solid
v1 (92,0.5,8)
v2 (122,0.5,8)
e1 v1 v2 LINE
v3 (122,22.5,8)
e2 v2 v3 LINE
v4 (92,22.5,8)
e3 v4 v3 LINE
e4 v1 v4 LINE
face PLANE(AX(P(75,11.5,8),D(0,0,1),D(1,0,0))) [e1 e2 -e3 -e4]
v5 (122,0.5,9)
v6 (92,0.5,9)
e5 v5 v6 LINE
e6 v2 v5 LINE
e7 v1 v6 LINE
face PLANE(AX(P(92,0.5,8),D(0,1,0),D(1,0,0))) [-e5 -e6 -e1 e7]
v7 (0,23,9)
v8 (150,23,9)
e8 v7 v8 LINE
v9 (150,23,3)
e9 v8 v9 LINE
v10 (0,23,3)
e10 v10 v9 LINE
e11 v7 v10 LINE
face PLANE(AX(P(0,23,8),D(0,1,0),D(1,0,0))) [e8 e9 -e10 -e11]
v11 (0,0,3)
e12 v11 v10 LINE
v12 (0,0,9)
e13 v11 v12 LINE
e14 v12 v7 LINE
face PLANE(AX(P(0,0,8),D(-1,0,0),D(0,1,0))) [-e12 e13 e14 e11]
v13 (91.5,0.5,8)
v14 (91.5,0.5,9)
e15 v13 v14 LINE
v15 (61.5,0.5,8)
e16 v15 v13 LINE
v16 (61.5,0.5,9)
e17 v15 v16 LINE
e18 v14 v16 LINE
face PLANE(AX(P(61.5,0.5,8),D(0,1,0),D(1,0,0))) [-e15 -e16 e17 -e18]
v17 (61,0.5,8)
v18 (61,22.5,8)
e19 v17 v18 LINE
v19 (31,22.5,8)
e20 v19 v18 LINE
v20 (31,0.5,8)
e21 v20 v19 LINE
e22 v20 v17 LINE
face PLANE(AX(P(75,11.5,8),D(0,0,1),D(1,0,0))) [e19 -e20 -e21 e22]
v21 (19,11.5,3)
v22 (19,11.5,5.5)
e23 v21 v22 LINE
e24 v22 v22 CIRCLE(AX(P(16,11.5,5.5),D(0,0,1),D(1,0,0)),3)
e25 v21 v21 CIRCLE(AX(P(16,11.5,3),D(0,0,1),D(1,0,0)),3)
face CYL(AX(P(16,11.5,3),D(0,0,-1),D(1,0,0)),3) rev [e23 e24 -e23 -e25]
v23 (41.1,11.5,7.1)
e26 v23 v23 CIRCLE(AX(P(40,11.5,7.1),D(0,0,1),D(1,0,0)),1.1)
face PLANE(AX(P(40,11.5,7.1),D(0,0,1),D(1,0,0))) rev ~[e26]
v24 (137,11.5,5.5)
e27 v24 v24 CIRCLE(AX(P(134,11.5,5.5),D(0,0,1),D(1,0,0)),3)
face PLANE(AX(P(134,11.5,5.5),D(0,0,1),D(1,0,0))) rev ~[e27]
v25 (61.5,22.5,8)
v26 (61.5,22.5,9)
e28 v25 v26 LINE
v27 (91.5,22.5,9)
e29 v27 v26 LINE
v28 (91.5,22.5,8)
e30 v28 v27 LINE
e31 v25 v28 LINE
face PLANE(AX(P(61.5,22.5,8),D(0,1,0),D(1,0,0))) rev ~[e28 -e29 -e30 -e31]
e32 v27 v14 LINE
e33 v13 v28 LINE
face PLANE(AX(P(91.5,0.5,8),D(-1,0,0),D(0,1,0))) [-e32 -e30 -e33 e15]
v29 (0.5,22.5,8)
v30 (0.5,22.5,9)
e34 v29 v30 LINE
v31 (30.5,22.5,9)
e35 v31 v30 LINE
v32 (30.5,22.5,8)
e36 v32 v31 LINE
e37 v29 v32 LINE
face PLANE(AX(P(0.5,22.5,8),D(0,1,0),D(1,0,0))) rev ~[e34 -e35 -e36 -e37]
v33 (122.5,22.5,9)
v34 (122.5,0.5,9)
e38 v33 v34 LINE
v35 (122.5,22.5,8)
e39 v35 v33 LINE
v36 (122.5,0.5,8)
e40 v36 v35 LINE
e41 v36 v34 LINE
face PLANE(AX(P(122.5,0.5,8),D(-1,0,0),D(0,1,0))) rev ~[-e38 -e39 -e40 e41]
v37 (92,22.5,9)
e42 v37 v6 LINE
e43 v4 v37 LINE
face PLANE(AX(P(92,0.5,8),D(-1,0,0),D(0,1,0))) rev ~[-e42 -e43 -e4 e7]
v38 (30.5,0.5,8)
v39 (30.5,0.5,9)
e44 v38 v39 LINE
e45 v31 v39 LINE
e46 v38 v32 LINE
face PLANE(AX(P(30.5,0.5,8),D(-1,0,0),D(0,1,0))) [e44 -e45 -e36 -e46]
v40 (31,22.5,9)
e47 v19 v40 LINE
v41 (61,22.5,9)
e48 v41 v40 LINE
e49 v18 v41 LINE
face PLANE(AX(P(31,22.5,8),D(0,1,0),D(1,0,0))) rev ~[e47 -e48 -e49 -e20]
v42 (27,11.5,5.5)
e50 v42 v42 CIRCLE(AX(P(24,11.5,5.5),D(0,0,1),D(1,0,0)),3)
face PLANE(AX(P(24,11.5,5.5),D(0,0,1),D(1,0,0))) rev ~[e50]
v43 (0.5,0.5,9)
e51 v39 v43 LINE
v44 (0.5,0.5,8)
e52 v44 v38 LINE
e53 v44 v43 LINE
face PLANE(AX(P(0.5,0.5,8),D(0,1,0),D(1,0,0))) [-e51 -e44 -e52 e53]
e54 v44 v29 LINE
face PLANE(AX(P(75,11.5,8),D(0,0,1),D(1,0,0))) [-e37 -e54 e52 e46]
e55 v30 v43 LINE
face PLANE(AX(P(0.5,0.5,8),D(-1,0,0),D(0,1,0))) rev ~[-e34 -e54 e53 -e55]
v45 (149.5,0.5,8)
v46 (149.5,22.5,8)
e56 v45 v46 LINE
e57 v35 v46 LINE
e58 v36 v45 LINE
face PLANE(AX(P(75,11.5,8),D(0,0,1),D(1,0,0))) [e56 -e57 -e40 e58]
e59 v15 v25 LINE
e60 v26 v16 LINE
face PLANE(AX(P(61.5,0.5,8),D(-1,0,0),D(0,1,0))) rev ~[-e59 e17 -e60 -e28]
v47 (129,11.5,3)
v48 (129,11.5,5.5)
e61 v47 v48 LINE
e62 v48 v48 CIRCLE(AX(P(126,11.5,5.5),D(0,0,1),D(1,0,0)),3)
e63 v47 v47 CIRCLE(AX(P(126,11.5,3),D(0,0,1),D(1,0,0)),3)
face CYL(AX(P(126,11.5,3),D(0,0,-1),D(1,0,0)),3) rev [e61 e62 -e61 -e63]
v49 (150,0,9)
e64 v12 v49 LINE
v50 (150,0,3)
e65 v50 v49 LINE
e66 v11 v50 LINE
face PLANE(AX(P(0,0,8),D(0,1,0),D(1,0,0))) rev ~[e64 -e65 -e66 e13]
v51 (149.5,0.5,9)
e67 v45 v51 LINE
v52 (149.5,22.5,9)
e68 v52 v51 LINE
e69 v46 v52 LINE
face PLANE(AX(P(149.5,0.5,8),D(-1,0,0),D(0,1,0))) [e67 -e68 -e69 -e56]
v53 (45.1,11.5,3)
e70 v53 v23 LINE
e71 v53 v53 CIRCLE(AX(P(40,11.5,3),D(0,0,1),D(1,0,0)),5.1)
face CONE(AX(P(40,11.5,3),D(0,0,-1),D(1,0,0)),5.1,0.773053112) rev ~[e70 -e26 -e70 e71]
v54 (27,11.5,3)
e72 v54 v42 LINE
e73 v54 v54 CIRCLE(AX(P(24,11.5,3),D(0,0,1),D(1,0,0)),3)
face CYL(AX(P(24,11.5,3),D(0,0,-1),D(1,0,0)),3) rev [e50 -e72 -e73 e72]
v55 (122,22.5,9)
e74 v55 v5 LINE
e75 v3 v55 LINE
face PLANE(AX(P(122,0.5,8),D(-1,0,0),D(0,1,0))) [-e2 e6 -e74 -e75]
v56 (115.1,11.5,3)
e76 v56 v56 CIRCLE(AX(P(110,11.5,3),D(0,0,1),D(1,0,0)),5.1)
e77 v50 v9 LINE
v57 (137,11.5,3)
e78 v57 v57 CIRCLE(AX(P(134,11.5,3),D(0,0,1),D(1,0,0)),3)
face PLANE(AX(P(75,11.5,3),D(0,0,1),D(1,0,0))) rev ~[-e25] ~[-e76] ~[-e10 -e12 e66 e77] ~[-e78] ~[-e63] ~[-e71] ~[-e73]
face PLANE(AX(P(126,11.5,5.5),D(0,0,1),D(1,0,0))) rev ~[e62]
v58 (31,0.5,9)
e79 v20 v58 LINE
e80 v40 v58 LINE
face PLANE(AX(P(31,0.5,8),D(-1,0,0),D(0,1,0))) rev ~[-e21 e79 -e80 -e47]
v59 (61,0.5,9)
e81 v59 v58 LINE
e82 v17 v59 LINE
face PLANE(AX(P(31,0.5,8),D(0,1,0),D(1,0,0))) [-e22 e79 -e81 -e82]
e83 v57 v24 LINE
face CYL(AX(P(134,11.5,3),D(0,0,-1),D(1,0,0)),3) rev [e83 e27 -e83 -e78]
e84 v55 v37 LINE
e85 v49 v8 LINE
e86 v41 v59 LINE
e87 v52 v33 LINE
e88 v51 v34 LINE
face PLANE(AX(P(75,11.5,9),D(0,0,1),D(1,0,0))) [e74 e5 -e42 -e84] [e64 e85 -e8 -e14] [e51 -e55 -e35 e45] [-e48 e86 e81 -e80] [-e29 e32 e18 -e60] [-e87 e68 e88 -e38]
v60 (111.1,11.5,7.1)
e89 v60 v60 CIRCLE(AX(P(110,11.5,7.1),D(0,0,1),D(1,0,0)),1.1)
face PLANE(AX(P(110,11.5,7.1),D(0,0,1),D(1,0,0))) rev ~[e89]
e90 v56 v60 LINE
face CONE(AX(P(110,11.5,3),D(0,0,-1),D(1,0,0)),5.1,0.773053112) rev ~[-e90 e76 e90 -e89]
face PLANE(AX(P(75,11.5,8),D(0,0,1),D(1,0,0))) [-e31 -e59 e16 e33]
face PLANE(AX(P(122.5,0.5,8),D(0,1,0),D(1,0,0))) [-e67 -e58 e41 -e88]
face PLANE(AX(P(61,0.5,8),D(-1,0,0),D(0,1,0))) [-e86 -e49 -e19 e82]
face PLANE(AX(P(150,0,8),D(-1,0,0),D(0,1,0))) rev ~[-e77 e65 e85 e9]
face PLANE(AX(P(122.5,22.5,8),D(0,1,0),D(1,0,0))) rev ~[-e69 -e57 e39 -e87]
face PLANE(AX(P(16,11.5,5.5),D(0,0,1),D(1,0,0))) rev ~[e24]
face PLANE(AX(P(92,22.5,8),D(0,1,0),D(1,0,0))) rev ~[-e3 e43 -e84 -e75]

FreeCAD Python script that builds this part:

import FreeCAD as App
import Part
import Sketcher
Q = App.Units.Quantity

doc = App.newDocument("Part")
body = doc.addObject("PartDesign::Body", "Body")

# Sketch on XY plane
sketch1 = body.newObject("Sketcher::SketchObject", "Sketch")
sketch1.AttachmentSupport = (doc.getObject("XY_Plane"), [""])
sketch1.MapMode = "FlatFace"
sketch1.AttachmentOffset = App.Placement(App.Vector(0, 0, 8), App.Rotation())
sketch1.addGeometry([
    Part.LineSegment(App.Vector(92, 22, 0), App.Vector(92, 0, 0)),
    Part.LineSegment(App.Vector(92, 0, 0), App.Vector(122, 0, 0)),
    Part.LineSegment(App.Vector(122, 0, 0), App.Vector(122, 22, 0)),
    Part.LineSegment(App.Vector(122, 22, 0), App.Vector(92, 22, 0)),
], False)
sketch1.addConstraint([
    Sketcher.Constraint("Coincident", 0, 2, 1, 1),
    Sketcher.Constraint("Coincident", 1, 2, 2, 1),
    Sketcher.Constraint("Coincident", 2, 2, 3, 1),
    Sketcher.Constraint("Coincident", 3, 2, 0, 1),
    Sketcher.Constraint("Vertical", 0),
    Sketcher.Constraint("Horizontal", 1),
    Sketcher.Constraint("Vertical", 2),
    Sketcher.Constraint("Horizontal", 3),
    Sketcher.Constraint("DistanceX", 1, 1, 1, 2, Q("30 mm")),
    Sketcher.Constraint("DistanceY", 0, 2, 0, 1, Q("22 mm")),
    Sketcher.Constraint("DistanceX", -1, 1, 0, 2, Q("92 mm")),
    Sketcher.Constraint("DistanceY", -1, 1, 0, 2, Q("0.5 mm")),
])
pad1 = body.newObject("PartDesign::Pad", "Pad")
pad1.Profile = sketch1
pad1.Length = 1.5
body2 = doc.addObject("PartDesign::Body", "Body001")

# Sketch on XY plane
sketch2 = body2.newObject("Sketcher::SketchObject", "Sketch001")
sketch2.AttachmentSupport = (doc.getObject("XY_Plane001"), [""])
sketch2.MapMode = "FlatFace"
sketch2.AttachmentOffset = App.Placement(App.Vector(0, 0, 8), App.Rotation())
sketch2.addGeometry([
    Part.LineSegment(App.Vector(122, 22, 0), App.Vector(122, 0, 0)),
    Part.LineSegment(App.Vector(122, 0, 0), App.Vector(150, 0, 0)),
    Part.LineSegment(App.Vector(150, 0, 0), App.Vector(150, 22, 0)),
    Part.LineSegment(App.Vector(150, 22, 0), App.Vector(122, 22, 0)),
], False)
sketch2.addConstraint([
    Sketcher.Constraint("Coincident", 0, 2, 1, 1),
    Sketcher.Constraint("Coincident", 1, 2, 2, 1),
    Sketcher.Constraint("Coincident", 2, 2, 3, 1),
    Sketcher.Constraint("Coincident", 3, 2, 0, 1),
    Sketcher.Constraint("Vertical", 0),
    Sketcher.Constraint("Horizontal", 1),
    Sketcher.Constraint("Vertical", 2),
    Sketcher.Constraint("Horizontal", 3),
    Sketcher.Constraint("DistanceX", 1, 1, 1, 2, Q("27 mm")),
    Sketcher.Constraint("DistanceY", 0, 2, 0, 1, Q("22 mm")),
    Sketcher.Constraint("DistanceX", -1, 1, 0, 2, Q("122.5 mm")),
    Sketcher.Constraint("DistanceY", -1, 1, 0, 2, Q("0.5 mm")),
])
pad2 = body2.newObject("PartDesign::Pad", "Pad001")
pad2.Profile = sketch2
pad2.Length = 1.5
body3 = doc.addObject("PartDesign::Body", "Body002")

# Sketch on XY plane
sketch3 = body3.newObject("Sketcher::SketchObject", "Sketch002")
sketch3.AttachmentSupport = (doc.getObject("XY_Plane002"), [""])
sketch3.MapMode = "FlatFace"
sketch3.AttachmentOffset = App.Placement(App.Vector(0, 0, 8), App.Rotation())
sketch3.addGeometry([
    Part.LineSegment(App.Vector(62, 22, 0), App.Vector(62, 0, 0)),
    Part.LineSegment(App.Vector(62, 0, 0), App.Vector(92, 0, 0)),
    Part.LineSegment(App.Vector(92, 0, 0), App.Vector(92, 22, 0)),
    Part.LineSegment(App.Vector(92, 22, 0), App.Vector(62, 22, 0)),
], False)
sketch3.addConstraint([
    Sketcher.Constraint("Coincident", 0, 2, 1, 1),
    Sketcher.Constraint("Coincident", 1, 2, 2, 1),
    Sketcher.Constraint("Coincident", 2, 2, 3, 1),
    Sketcher.Constraint("Coincident", 3, 2, 0, 1),
    Sketcher.Constraint("Vertical", 0),
    Sketcher.Constraint("Horizontal", 1),
    Sketcher.Constraint("Vertical", 2),
    Sketcher.Constraint("Horizontal", 3),
    Sketcher.Constraint("DistanceX", 1, 1, 1, 2, Q("30 mm")),
    Sketcher.Constraint("DistanceY", 0, 2, 0, 1, Q("22 mm")),
    Sketcher.Constraint("DistanceX", -1, 1, 0, 2, Q("61.5 mm")),
    Sketcher.Constraint("DistanceY", -1, 1, 0, 2, Q("0.5 mm")),
])
pad3 = body3.newObject("PartDesign::Pad", "Pad002")
pad3.Profile = sketch3
pad3.Length = 1.5
body4 = doc.addObject("PartDesign::Body", "Body003")

# Sketch on XY plane
sketch4 = body4.newObject("Sketcher::SketchObject", "Sketch003")
sketch4.AttachmentSupport = (doc.getObject("XY_Plane003"), [""])
sketch4.MapMode = "FlatFace"
sketch4.AttachmentOffset = App.Placement(App.Vector(0, 0, 8), App.Rotation())
sketch4.addGeometry([
    Part.LineSegment(App.Vector(31, 22, 0), App.Vector(31, 0, 0)),
    Part.LineSegment(App.Vector(31, 0, 0), App.Vector(61, 0, 0)),
    Part.LineSegment(App.Vector(61, 0, 0), App.Vector(61, 22, 0)),
    Part.LineSegment(App.Vector(61, 22, 0), App.Vector(31, 22, 0)),
], False)
sketch4.addConstraint([
    Sketcher.Constraint("Coincident", 0, 2, 1, 1),
    Sketcher.Constraint("Coincident", 1, 2, 2, 1),
    Sketcher.Constraint("Coincident", 2, 2, 3, 1),
    Sketcher.Constraint("Coincident", 3, 2, 0, 1),
    Sketcher.Constraint("Vertical", 0),
    Sketcher.Constraint("Horizontal", 1),
    Sketcher.Constraint("Vertical", 2),
    Sketcher.Constraint("Horizontal", 3),
    Sketcher.Constraint("DistanceX", 1, 1, 1, 2, Q("30 mm")),
    Sketcher.Constraint("DistanceY", 0, 2, 0, 1, Q("22 mm")),
    Sketcher.Constraint("DistanceX", -1, 1, 0, 2, Q("31 mm")),
    Sketcher.Constraint("DistanceY", -1, 1, 0, 2, Q("0.5 mm")),
])
pad4 = body4.newObject("PartDesign::Pad", "Pad003")
pad4.Profile = sketch4
pad4.Length = 1.5
body5 = doc.addObject("PartDesign::Body", "Body004")
body5.AllowCompound = True

# Sketch on XY plane
sketch5 = body5.newObject("Sketcher::SketchObject", "Sketch004")
sketch5.AttachmentSupport = (doc.getObject("XY_Plane004"), [""])
sketch5.MapMode = "FlatFace"
sketch5.AttachmentOffset = App.Placement(App.Vector(0, 0, 8), App.Rotation())
sketch5.addGeometry([
    Part.LineSegment(App.Vector(0, 22, 0), App.Vector(0, 0, 0)),
    Part.LineSegment(App.Vector(0, 0, 0), App.Vector(30, 0, 0)),
    Part.LineSegment(App.Vector(30, 0, 0), App.Vector(30, 22, 0)),
    Part.LineSegment(App.Vector(30, 22, 0), App.Vector(0, 22, 0)),
], False)
sketch5.addConstraint([
    Sketcher.Constraint("Coincident", 0, 2, 1, 1),
    Sketcher.Constraint("Coincident", 1, 2, 2, 1),
    Sketcher.Constraint("Coincident", 2, 2, 3, 1),
    Sketcher.Constraint("Coincident", 3, 2, 0, 1),
    Sketcher.Constraint("Vertical", 0),
    Sketcher.Constraint("Horizontal", 1),
    Sketcher.Constraint("Vertical", 2),
    Sketcher.Constraint("Horizontal", 3),
    Sketcher.Constraint("DistanceX", 1, 1, 1, 2, Q("30 mm")),
    Sketcher.Constraint("DistanceY", 0, 2, 0, 1, Q("22 mm")),
    Sketcher.Constraint("DistanceX", -1, 1, 0, 2, Q("0.5 mm")),
    Sketcher.Constraint("DistanceY", -1, 1, 0, 2, Q("0.5 mm")),
])
pad5 = body5.newObject("PartDesign::Pad", "Pad004")
pad5.Profile = sketch5
pad5.Length = 1.5
doc.recompute()

boolean = body5.newObject("PartDesign::Boolean", "Boolean")
boolean.Type = "Fuse"
boolean.addObjects([body])
doc.recompute()

boolean2 = body5.newObject("PartDesign::Boolean", "Boolean001")
boolean2.Type = "Fuse"
boolean2.addObjects([body2])
doc.recompute()

boolean3 = body5.newObject("PartDesign::Boolean", "Boolean002")
boolean3.Type = "Fuse"
boolean3.addObjects([body3])
doc.recompute()

boolean4 = body5.newObject("PartDesign::Boolean", "Boolean003")
boolean4.Type = "Fuse"
boolean4.addObjects([body4])
body6 = doc.addObject("PartDesign::Body", "Body005")

# Sketch on XY plane
sketch6 = body6.newObject("Sketcher::SketchObject", "Sketch005")
sketch6.AttachmentSupport = (doc.getObject("XY_Plane005"), [""])
sketch6.MapMode = "FlatFace"
sketch6.AttachmentOffset = App.Placement(App.Vector(0, 0, 8), App.Rotation())
sketch6.addGeometry([
    Part.LineSegment(App.Vector(0, 23, 0), App.Vector(0, 0, 0)),
    Part.LineSegment(App.Vector(0, 0, 0), App.Vector(150, 0, 0)),
    Part.LineSegment(App.Vector(150, 0, 0), App.Vector(150, 23, 0)),
    Part.LineSegment(App.Vector(150, 23, 0), App.Vector(0, 23, 0)),
], False)
sketch6.addConstraint([
    Sketcher.Constraint("Coincident", 0, 2, 1, 1),
    Sketcher.Constraint("Coincident", 1, 2, 2, 1),
    Sketcher.Constraint("Coincident", 2, 2, 3, 1),
    Sketcher.Constraint("Coincident", 3, 2, 0, 1),
    Sketcher.Constraint("Vertical", 0),
    Sketcher.Constraint("Horizontal", 1),
    Sketcher.Constraint("Vertical", 2),
    Sketcher.Constraint("Horizontal", 3),
    Sketcher.Constraint("Coincident", 0, 2, -1, 1),
    Sketcher.Constraint("DistanceX", 1, 1, 1, 2, Q("150 mm")),
    Sketcher.Constraint("DistanceY", 0, 2, 0, 1, Q("23 mm")),
])
pad6 = body6.newObject("PartDesign::Pad", "Pad005")
pad6.Profile = sketch6
pad6.Length = 1
doc.recompute()

boolean5 = body6.newObject("PartDesign::Boolean", "Boolean004")
boolean5.Type = "Cut"
boolean5.addObjects([body5])
body7 = doc.addObject("PartDesign::Body", "Body006")

# Sketch on XZ plane
sketch7 = body7.newObject("Sketcher::SketchObject", "Sketch006")
sketch7.AttachmentSupport = (doc.getObject("XZ_Plane006"), [""])
sketch7.MapMode = "FlatFace"
sketch7.AttachmentOffset = App.Placement(App.Vector(0, 0, -11.5), App.Rotation())
sketch7.addGeometry([
    Part.LineSegment(App.Vector(40, 3, 0), App.Vector(45.1, 3, 0)),
    Part.LineSegment(App.Vector(45.1, 3, 0), App.Vector(41.1, 7.1, 0)),
    Part.LineSegment(App.Vector(41.1, 7.1, 0), App.Vector(40, 7.1, 0)),
    Part.LineSegment(App.Vector(40, 7.1, 0), App.Vector(40, 3, 0)),
], False)
sketch7.addGeometry(Part.LineSegment(App.Vector(40, 3, 0), App.Vector(40, 7.1, 0)), True)  # axis
sketch7.addConstraint([
    Sketcher.Constraint("Coincident", 0, 2, 1, 1),
    Sketcher.Constraint("Coincident", 1, 2, 2, 1),
    Sketcher.Constraint("Coincident", 2, 2, 3, 1),
    Sketcher.Constraint("Coincident", 3, 2, 0, 1),
    Sketcher.Constraint("Horizontal", 0),
    Sketcher.Constraint("Horizontal", 2),
    Sketcher.Constraint("Vertical", 3),
    Sketcher.Constraint("Vertical", 4),
    Sketcher.Constraint("Coincident", 4, 1, 3, 2),
    Sketcher.Constraint("Horizontal", 1, 2, 4, 2),
    Sketcher.Constraint("DistanceX", 0, 1, 0, 2, Q("5.1 mm")),
    Sketcher.Constraint("DistanceX", 2, 2, 2, 1, Q("1.1 mm")),
    Sketcher.Constraint("DistanceY", 3, 2, 3, 1, Q("4.1 mm")),
    Sketcher.Constraint("DistanceY", -1, 1, 0, 2, Q("3 mm")),
    Sketcher.Constraint("DistanceX", -1, 1, 2, 2, Q("40 mm")),
])
revolution = body7.newObject("PartDesign::Revolution", "Revolution")
revolution.Profile = sketch7
revolution.ReferenceAxis = (sketch7, ["Axis0"])
revolution.Angle = 360
body8 = doc.addObject("PartDesign::Body", "Body007")

# Sketch on XZ plane
sketch8 = body8.newObject("Sketcher::SketchObject", "Sketch007")
sketch8.AttachmentSupport = (doc.getObject("XZ_Plane007"), [""])
sketch8.MapMode = "FlatFace"
sketch8.AttachmentOffset = App.Placement(App.Vector(0, 0, -11.5), App.Rotation())
sketch8.addGeometry([
    Part.LineSegment(App.Vector(110, 3, 0), App.Vector(115.1, 3, 0)),
    Part.LineSegment(App.Vector(115.1, 3, 0), App.Vector(111.1, 7.1, 0)),
    Part.LineSegment(App.Vector(111.1, 7.1, 0), App.Vector(110, 7.1, 0)),
    Part.LineSegment(App.Vector(110, 7.1, 0), App.Vector(110, 3, 0)),
], False)
sketch8.addGeometry(Part.LineSegment(App.Vector(110, 3, 0), App.Vector(110, 7.1, 0)), True)  # axis
sketch8.addConstraint([
    Sketcher.Constraint("Coincident", 0, 2, 1, 1),
    Sketcher.Constraint("Coincident", 1, 2, 2, 1),
    Sketcher.Constraint("Coincident", 2, 2, 3, 1),
    Sketcher.Constraint("Coincident", 3, 2, 0, 1),
    Sketcher.Constraint("Horizontal", 0),
    Sketcher.Constraint("Horizontal", 2),
    Sketcher.Constraint("Vertical", 3),
    Sketcher.Constraint("Vertical", 4),
    Sketcher.Constraint("Coincident", 4, 1, 3, 2),
    Sketcher.Constraint("Horizontal", 1, 2, 4, 2),
    Sketcher.Constraint("DistanceX", 0, 1, 0, 2, Q("5.1 mm")),
    Sketcher.Constraint("DistanceX", 2, 2, 2, 1, Q("1.1 mm")),
    Sketcher.Constraint("DistanceY", 3, 2, 3, 1, Q("4.1 mm")),
    Sketcher.Constraint("DistanceY", -1, 1, 0, 2, Q("3 mm")),
    Sketcher.Constraint("DistanceX", -1, 1, 2, 2, Q("110 mm")),
])
revolution2 = body8.newObject("PartDesign::Revolution", "Revolution001")
revolution2.Profile = sketch8
revolution2.ReferenceAxis = (sketch8, ["Axis0"])
revolution2.Angle = 360
body9 = doc.addObject("PartDesign::Body", "Body008")

# Sketch on XY plane
sketch9 = body9.newObject("Sketcher::SketchObject", "Sketch008")
sketch9.AttachmentSupport = (doc.getObject("XY_Plane008"), [""])
sketch9.MapMode = "FlatFace"
sketch9.AttachmentOffset = App.Placement(App.Vector(0, 0, 3), App.Rotation())
sketch9.addGeometry(Part.Circle(App.Vector(24, 11.5, 0), App.Vector(0, 0, 1), 3), False)
sketch9.addConstraint([
    Sketcher.Constraint("Diameter", 0, Q("6 mm")),
    Sketcher.Constraint("DistanceX", -1, 1, 0, 3, Q("24 mm")),
    Sketcher.Constraint("DistanceY", -1, 1, 0, 3, Q("11.5 mm")),
])
pad7 = body9.newObject("PartDesign::Pad", "Pad006")
pad7.Profile = sketch9
pad7.Length = 2.5
body10 = doc.addObject("PartDesign::Body", "Body009")

# Sketch on XY plane
sketch10 = body10.newObject("Sketcher::SketchObject", "Sketch009")
sketch10.AttachmentSupport = (doc.getObject("XY_Plane009"), [""])
sketch10.MapMode = "FlatFace"
sketch10.AttachmentOffset = App.Placement(App.Vector(0, 0, 3), App.Rotation())
sketch10.addGeometry(Part.Circle(App.Vector(126, 11.5, 0), App.Vector(0, 0, 1), 3), False)
sketch10.addConstraint([
    Sketcher.Constraint("Diameter", 0, Q("6 mm")),
    Sketcher.Constraint("DistanceX", -1, 1, 0, 3, Q("126 mm")),
    Sketcher.Constraint("DistanceY", -1, 1, 0, 3, Q("11.5 mm")),
])
pad8 = body10.newObject("PartDesign::Pad", "Pad007")
pad8.Profile = sketch10
pad8.Length = 2.5
body11 = doc.addObject("PartDesign::Body", "Body010")

# Sketch on XY plane
sketch11 = body11.newObject("Sketcher::SketchObject", "Sketch010")
sketch11.AttachmentSupport = (doc.getObject("XY_Plane010"), [""])
sketch11.MapMode = "FlatFace"
sketch11.AttachmentOffset = App.Placement(App.Vector(0, 0, 3), App.Rotation())
sketch11.addGeometry(Part.Circle(App.Vector(134, 11.5, 0), App.Vector(0, 0, 1), 3), False)
sketch11.addConstraint([
    Sketcher.Constraint("Diameter", 0, Q("6 mm")),
    Sketcher.Constraint("DistanceX", -1, 1, 0, 3, Q("134 mm")),
    Sketcher.Constraint("DistanceY", -1, 1, 0, 3, Q("11.5 mm")),
])
pad9 = body11.newObject("PartDesign::Pad", "Pad008")
pad9.Profile = sketch11
pad9.Length = 2.5
body12 = doc.addObject("PartDesign::Body", "Body011")
body12.AllowCompound = True

# Sketch on XY plane
sketch12 = body12.newObject("Sketcher::SketchObject", "Sketch011")
sketch12.AttachmentSupport = (doc.getObject("XY_Plane011"), [""])
sketch12.MapMode = "FlatFace"
sketch12.AttachmentOffset = App.Placement(App.Vector(0, 0, 3), App.Rotation())
sketch12.addGeometry(Part.Circle(App.Vector(16, 11.5, 0), App.Vector(0, 0, 1), 3), False)
sketch12.addConstraint([
    Sketcher.Constraint("Diameter", 0, Q("6 mm")),
    Sketcher.Constraint("DistanceX", -1, 1, 0, 3, Q("16 mm")),
    Sketcher.Constraint("DistanceY", -1, 1, 0, 3, Q("11.5 mm")),
])
pad10 = body12.newObject("PartDesign::Pad", "Pad009")
pad10.Profile = sketch12
pad10.Length = 2.5
doc.recompute()

boolean6 = body12.newObject("PartDesign::Boolean", "Boolean005")
boolean6.Type = "Fuse"
boolean6.addObjects([body7])
doc.recompute()

boolean7 = body12.newObject("PartDesign::Boolean", "Boolean006")
boolean7.Type = "Fuse"
boolean7.addObjects([body8])
doc.recompute()

boolean8 = body12.newObject("PartDesign::Boolean", "Boolean007")
boolean8.Type = "Fuse"
boolean8.addObjects([body9])
doc.recompute()

boolean9 = body12.newObject("PartDesign::Boolean", "Boolean008")
boolean9.Type = "Fuse"
boolean9.addObjects([body10])
doc.recompute()

boolean10 = body12.newObject("PartDesign::Boolean", "Boolean009")
boolean10.Type = "Fuse"
boolean10.addObjects([body11])
body13 = doc.addObject("PartDesign::Body", "Body012")

# Sketch on XY plane
sketch13 = body13.newObject("Sketcher::SketchObject", "Sketch012")
sketch13.AttachmentSupport = (doc.getObject("XY_Plane012"), [""])
sketch13.MapMode = "FlatFace"
sketch13.AttachmentOffset = App.Placement(App.Vector(0, 0, 3), App.Rotation())
sketch13.addGeometry([
    Part.LineSegment(App.Vector(0, 23, 0), App.Vector(0, 0, 0)),
    Part.LineSegment(App.Vector(0, 0, 0), App.Vector(150, 0, 0)),
    Part.LineSegment(App.Vector(150, 0, 0), App.Vector(150, 23, 0)),
    Part.LineSegment(App.Vector(150, 23, 0), App.Vector(0, 23, 0)),
], False)
sketch13.addConstraint([
    Sketcher.Constraint("Coincident", 0, 2, 1, 1),
    Sketcher.Constraint("Coincident", 1, 2, 2, 1),
    Sketcher.Constraint("Coincident", 2, 2, 3, 1),
    Sketcher.Constraint("Coincident", 3, 2, 0, 1),
    Sketcher.Constraint("Vertical", 0),
    Sketcher.Constraint("Horizontal", 1),
    Sketcher.Constraint("Vertical", 2),
    Sketcher.Constraint("Horizontal", 3),
    Sketcher.Constraint("Coincident", 0, 2, -1, 1),
    Sketcher.Constraint("DistanceX", 1, 1, 1, 2, Q("150 mm")),
    Sketcher.Constraint("DistanceY", 0, 2, 0, 1, Q("23 mm")),
])
pad11 = body13.newObject("PartDesign::Pad", "Pad010")
pad11.Profile = sketch13
pad11.Length = 5
doc.recompute()

boolean11 = body13.newObject("PartDesign::Boolean", "Boolean010")
boolean11.Type = "Cut"
boolean11.addObjects([body12])
doc.recompute()

boolean12 = body13.newObject("PartDesign::Boolean", "Boolean011")
boolean12.Type = "Fuse"
boolean12.addObjects([body6])

doc.recompute()
